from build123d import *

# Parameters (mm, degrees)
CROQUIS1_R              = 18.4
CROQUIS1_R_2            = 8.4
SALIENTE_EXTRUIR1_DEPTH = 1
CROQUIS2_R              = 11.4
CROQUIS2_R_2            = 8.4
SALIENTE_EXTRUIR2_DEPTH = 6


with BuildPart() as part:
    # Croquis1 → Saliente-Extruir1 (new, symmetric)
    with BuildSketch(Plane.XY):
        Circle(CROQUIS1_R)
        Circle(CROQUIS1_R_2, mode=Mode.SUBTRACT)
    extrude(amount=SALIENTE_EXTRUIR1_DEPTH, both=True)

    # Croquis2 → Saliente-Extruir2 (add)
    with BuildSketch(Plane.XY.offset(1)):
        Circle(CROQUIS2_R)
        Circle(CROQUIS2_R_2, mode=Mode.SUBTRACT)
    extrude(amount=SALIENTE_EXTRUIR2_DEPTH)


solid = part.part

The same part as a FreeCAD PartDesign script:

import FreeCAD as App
import Part
import Sketcher

doc = App.newDocument("Part")
params = doc.addObject("Spreadsheet::Sheet", "Params")
for row, (alias, value) in enumerate([
    ("sketch1_diameter", "36.8 mm"),
    ("sketch1_diameter2", "16.8 mm"),
    ("pad1_length", "2 mm"),
    ("sketch2_diameter", "22.8 mm"),
    ("sketch2_diameter2", "16.8 mm"),
    ("pad2_length", "6 mm"),
], start=1):
    params.set(f"A{row}", alias)
    params.set(f"B{row}", "=" + value)
    params.setAlias(f"B{row}", alias)

body = doc.addObject("PartDesign::Body", "Body")

# Sketch on XY plane
sketch1 = body.newObject("Sketcher::SketchObject", "Sketch")
sketch1.AttachmentSupport = (doc.getObject("XY_Plane"), [""])
sketch1.MapMode = "FlatFace"
sketch1.addGeometry(Part.Circle(App.Vector(0, 0, 0), App.Vector(0, 0, 1), 18), False)
sketch1.addGeometry(Part.Circle(App.Vector(0, 0, 0), App.Vector(0, 0, 1), 8), False)
sketch1.addConstraint(Sketcher.Constraint("Coincident", 0, 3, -1, 1))
sketch1.addConstraint(Sketcher.Constraint("Coincident", 1, 3, -1, 1))
sketch1.addConstraint(Sketcher.Constraint("Diameter", 0, 36.8))
sketch1.addConstraint(Sketcher.Constraint("Diameter", 1, 16.8))
sketch1.setExpression("Constraints[2]", "Params.sketch1_diameter")
sketch1.setExpression("Constraints[3]", "Params.sketch1_diameter2")
pad1 = body.newObject("PartDesign::Pad", "Pad")
pad1.Profile = sketch1
pad1.setExpression("Length", "Params.pad1_length")
pad1.Midplane = True

# Sketch on XY plane
sketch2 = body.newObject("Sketcher::SketchObject", "Sketch001")
sketch2.AttachmentSupport = (doc.getObject("XY_Plane"), [""])
sketch2.MapMode = "FlatFace"
sketch2.AttachmentOffset = App.Placement(App.Vector(0, 0, 1), App.Rotation())
sketch2.addGeometry(Part.Circle(App.Vector(0, 0, 0), App.Vector(0, 0, 1), 11), False)
sketch2.addGeometry(Part.Circle(App.Vector(0, 0, 0), App.Vector(0, 0, 1), 8), False)
sketch2.addConstraint(Sketcher.Constraint("Coincident", 0, 3, -1, 1))
sketch2.addConstraint(Sketcher.Constraint("Coincident", 1, 3, -1, 1))
sketch2.addConstraint(Sketcher.Constraint("Diameter", 0, 22.8))
sketch2.addConstraint(Sketcher.Constraint("Diameter", 1, 16.8))
sketch2.setExpression("Constraints[2]", "Params.sketch2_diameter")
sketch2.setExpression("Constraints[3]", "Params.sketch2_diameter2")
pad2 = body.newObject("PartDesign::Pad", "Pad001")
pad2.Profile = sketch2
pad2.setExpression("Length", "Params.pad2_length")

doc.recompute()
